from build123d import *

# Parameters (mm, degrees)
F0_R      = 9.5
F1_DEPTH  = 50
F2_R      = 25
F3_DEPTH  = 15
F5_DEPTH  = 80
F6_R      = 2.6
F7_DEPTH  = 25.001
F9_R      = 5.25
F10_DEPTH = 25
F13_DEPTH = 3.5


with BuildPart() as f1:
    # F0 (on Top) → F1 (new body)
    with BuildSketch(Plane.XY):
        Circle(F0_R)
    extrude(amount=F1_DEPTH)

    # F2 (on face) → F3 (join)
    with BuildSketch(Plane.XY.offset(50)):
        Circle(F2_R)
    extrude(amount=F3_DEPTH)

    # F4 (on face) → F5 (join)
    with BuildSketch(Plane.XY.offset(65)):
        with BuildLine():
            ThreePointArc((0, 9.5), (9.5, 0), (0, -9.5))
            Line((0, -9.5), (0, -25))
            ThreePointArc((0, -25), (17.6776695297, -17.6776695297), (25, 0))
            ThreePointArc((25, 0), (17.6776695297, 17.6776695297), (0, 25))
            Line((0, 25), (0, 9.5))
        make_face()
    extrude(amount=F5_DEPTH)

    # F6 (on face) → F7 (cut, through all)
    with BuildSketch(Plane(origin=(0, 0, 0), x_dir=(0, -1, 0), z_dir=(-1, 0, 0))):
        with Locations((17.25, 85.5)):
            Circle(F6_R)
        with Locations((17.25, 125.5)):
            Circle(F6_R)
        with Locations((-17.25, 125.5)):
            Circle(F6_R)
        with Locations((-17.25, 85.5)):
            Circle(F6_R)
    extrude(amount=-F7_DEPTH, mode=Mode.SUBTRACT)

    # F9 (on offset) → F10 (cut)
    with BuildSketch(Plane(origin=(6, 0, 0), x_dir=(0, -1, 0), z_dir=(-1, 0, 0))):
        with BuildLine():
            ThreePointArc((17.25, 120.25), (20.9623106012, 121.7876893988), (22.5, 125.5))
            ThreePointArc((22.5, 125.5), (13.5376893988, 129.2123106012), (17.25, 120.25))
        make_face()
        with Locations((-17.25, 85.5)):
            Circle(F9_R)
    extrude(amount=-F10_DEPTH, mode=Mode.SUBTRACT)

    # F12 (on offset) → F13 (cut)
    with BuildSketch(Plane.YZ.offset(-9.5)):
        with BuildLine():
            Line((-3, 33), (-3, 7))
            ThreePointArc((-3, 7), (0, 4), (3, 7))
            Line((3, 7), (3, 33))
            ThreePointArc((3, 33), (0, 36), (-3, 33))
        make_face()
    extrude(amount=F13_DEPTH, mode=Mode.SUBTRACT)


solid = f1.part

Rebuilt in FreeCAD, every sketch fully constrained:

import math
import FreeCAD as App
import Part
import Sketcher

doc = App.newDocument("Part")
body = doc.addObject("PartDesign::Body", "Body")

sketch1 = body.newObject("Sketcher::SketchObject", "Sketch")
sketch1.AttachmentSupport = (doc.getObject("XY_Plane"), [""])
sketch1.MapMode = "FlatFace"
sketch1.addGeometry(Part.Circle(App.Vector(0, 0, 0), App.Vector(0, 0, 1), 10), False)
sketch1.addConstraint(Sketcher.Constraint("Coincident", 0, 3, -1, 1))
sketch1.addConstraint(Sketcher.Constraint("Diameter", 0, 19.0))
pad1 = body.newObject("PartDesign::Pad", "Pad")
pad1.Profile = sketch1
pad1.Length = 50

sketch2 = body.newObject("Sketcher::SketchObject", "Sketch001")
sketch2.AttachmentSupport = (doc.getObject("XY_Plane"), [""])
sketch2.MapMode = "FlatFace"
sketch2.AttachmentOffset = App.Placement(App.Vector(0, 0, 50), App.Rotation())
sketch2.addGeometry(Part.Circle(App.Vector(0, 0, 0), App.Vector(0, 0, 1), 25), False)
sketch2.addConstraint(Sketcher.Constraint("Coincident", 0, 3, -1, 1))
sketch2.addConstraint(Sketcher.Constraint("Diameter", 0, 50.0))
pad2 = body.newObject("PartDesign::Pad", "Pad001")
pad2.Profile = sketch2
pad2.Length = 15

sketch3 = body.newObject("Sketcher::SketchObject", "Sketch002")
sketch3.AttachmentSupport = (doc.getObject("XY_Plane"), [""])
sketch3.MapMode = "FlatFace"
sketch3.AttachmentOffset = App.Placement(App.Vector(0, 0, 65), App.Rotation())
sketch3.addGeometry(Part.ArcOfCircle(Part.Circle(App.Vector(0, 0, 0), App.Vector(0, 0, 1), 10), math.radians(-90), math.radians(90)), False)
sketch3.addGeometry(Part.LineSegment(App.Vector(0, -10, 0), App.Vector(0, -25, 0)), False)
sketch3.addGeometry(Part.ArcOfCircle(Part.Circle(App.Vector(0, 0, 0), App.Vector(0, 0, 1), 25), math.radians(-90), math.radians(0)), False)
sketch3.addGeometry(Part.ArcOfCircle(Part.Circle(App.Vector(0, 0, 0), App.Vector(0, 0, 1), 25), math.radians(0), math.radians(90)), False)
sketch3.addGeometry(Part.LineSegment(App.Vector(0, 25, 0), App.Vector(0, 10, 0)), False)
sketch3.addConstraint(Sketcher.Constraint("Coincident", 0, 1, 1, 1))
sketch3.addConstraint(Sketcher.Constraint("Coincident", 1, 2, 2, 1))
sketch3.addConstraint(Sketcher.Constraint("Tangent", 2, 2, 3, 1))
sketch3.addConstraint(Sketcher.Constraint("Coincident", 3, 2, 4, 1))
sketch3.addConstraint(Sketcher.Constraint("Coincident", 4, 2, 0, 2))
sketch3.addConstraint(Sketcher.Constraint("Vertical", 1))
sketch3.addConstraint(Sketcher.Constraint("Vertical", 4))
sketch3.addConstraint(Sketcher.Constraint("Coincident", 0, 3, -1, 1))
sketch3.addConstraint(Sketcher.Constraint("Coincident", 2, 3, -1, 1))
sketch3.addConstraint(Sketcher.Constraint("Equal", 2, 3))
sketch3.addConstraint(Sketcher.Constraint("PointOnObject", 0, 1, -2))
sketch3.addConstraint(Sketcher.Constraint("PointOnObject", 2, 2, -1))
sketch3.addConstraint(Sketcher.Constraint("PointOnObject", 3, 2, -2))
sketch3.addConstraint(Sketcher.Constraint("Radius", 2, 25.0))
sketch3.addConstraint(Sketcher.Constraint("Radius", 0, 9.5))
pad3 = body.newObject("PartDesign::Pad", "Pad002")
pad3.Profile = sketch3
pad3.Length = 80

sketch4 = body.newObject("Sketcher::SketchObject", "Sketch003")
sketch4.AttachmentSupport = (doc.getObject("YZ_Plane"), [""])
sketch4.MapMode = "FlatFace"
sketch4.addGeometry(Part.Circle(App.Vector(-17.2, 85.5, 0), App.Vector(0, 0, 1), 2.6), False)
sketch4.addGeometry(Part.Circle(App.Vector(-17.2, 125.5, 0), App.Vector(0, 0, 1), 2.6), False)
sketch4.addGeometry(Part.Circle(App.Vector(17.2, 125.5, 0), App.Vector(0, 0, 1), 2.6), False)
sketch4.addGeometry(Part.Circle(App.Vector(17.2, 85.5, 0), App.Vector(0, 0, 1), 2.6), False)
sketch4.addConstraint(Sketcher.Constraint("Equal", 0, 1))
sketch4.addConstraint(Sketcher.Constraint("Equal", 1, 2))
sketch4.addConstraint(Sketcher.Constraint("Equal", 2, 3))
sketch4.addConstraint(Sketcher.Constraint("Symmetric", 1, 3, 2, 3, -2))
sketch4.addConstraint(Sketcher.Constraint("Symmetric", 0, 3, 3, 3, -2))
sketch4.addConstraint(Sketcher.Constraint("Vertical", 0, 3, 1, 3))
sketch4.addConstraint(Sketcher.Constraint("Diameter", 0, 5.2))
sketch4.addConstraint(Sketcher.Constraint("DistanceY", 0, 3, 1, 3, 40.0))
sketch4.addConstraint(Sketcher.Constraint("DistanceY", -1, 1, 0, 3, 85.5))
sketch4.addConstraint(Sketcher.Constraint("DistanceX", 1, 3, 2, 3, 34.5))
pocket1 = body.newObject("PartDesign::Pocket", "Pocket")
pocket1.Profile = sketch4
pocket1.Type = "ThroughAll"
pocket1.Reversed = True

sketch5 = body.newObject("Sketcher::SketchObject", "Sketch004")
sketch5.AttachmentSupport = (doc.getObject("YZ_Plane"), [""])
sketch5.MapMode = "FlatFace"
sketch5.AttachmentOffset = App.Placement(App.Vector(0, 0, 6), App.Rotation())
sketch5.addGeometry(Part.ArcOfCircle(Part.Circle(App.Vector(-17, 126, 0), App.Vector(0, 0, 1), 5), math.radians(180), math.radians(270)), False)
sketch5.addGeometry(Part.ArcOfCircle(Part.Circle(App.Vector(-17, 126, 0), App.Vector(0, 0, 1), 5), math.radians(-90), math.radians(180)), False)
sketch5.addGeometry(Part.Circle(App.Vector(17, 86, 0), App.Vector(0, 0, 1), 5), False)
sketch5.addConstraint(Sketcher.Constraint("Tangent", 0, 1, 1, 2))
sketch5.addConstraint(Sketcher.Constraint("Coincident", 1, 1, 0, 2))
sketch5.addConstraint(Sketcher.Constraint("Equal", 1, 2))
sketch5.addConstraint(Sketcher.Constraint("Horizontal", 1, 3, 0, 1))
sketch5.addConstraint(Sketcher.Constraint("Vertical", 0, 3, 1, 1))
sketch5.addConstraint(Sketcher.Constraint("Diameter", 2, 10.5))
sketch5.addConstraint(Sketcher.Constraint("DistanceY", 2, 3, 0, 3, 40.0))
sketch5.addConstraint(Sketcher.Constraint("DistanceY", -1, 1, 0, 3, 125.5))
sketch5.addConstraint(Sketcher.Constraint("DistanceX", 0, 1, -1, 1, 22.5))
sketch5.addConstraint(Sketcher.Constraint("DistanceX", 0, 3, 2, 3, 34.5))
pocket2 = body.newObject("PartDesign::Pocket", "Pocket001")
pocket2.Profile = sketch5
pocket2.Length = 25
pocket2.Reversed = True

sketch6 = body.newObject("Sketcher::SketchObject", "Sketch005")
sketch6.AttachmentSupport = (doc.getObject("YZ_Plane"), [""])
sketch6.MapMode = "FlatFace"
sketch6.AttachmentOffset = App.Placement(App.Vector(0, 0, -9.5), App.Rotation())
sketch6.addGeometry(Part.LineSegment(App.Vector(-3, 33, 0), App.Vector(-3, 7, 0)), False)
sketch6.addGeometry(Part.ArcOfCircle(Part.Circle(App.Vector(0, 7, 0), App.Vector(0, 0, 1), 3), math.radians(180), math.radians(360)), False)
sketch6.addGeometry(Part.LineSegment(App.Vector(3, 7, 0), App.Vector(3, 33, 0)), False)
sketch6.addGeometry(Part.ArcOfCircle(Part.Circle(App.Vector(0, 33, 0), App.Vector(0, 0, 1), 3), math.radians(0), math.radians(180)), False)
sketch6.addConstraint(Sketcher.Constraint("Tangent", 0, 2, 1, 1))
sketch6.addConstraint(Sketcher.Constraint("Tangent", 1, 2, 2, 1))
sketch6.addConstraint(Sketcher.Constraint("Tangent", 2, 2, 3, 1))
sketch6.addConstraint(Sketcher.Constraint("Tangent", 3, 2, 0, 1))
sketch6.addConstraint(Sketcher.Constraint("Vertical", 0))
sketch6.addConstraint(Sketcher.Constraint("Vertical", 2))
sketch6.addConstraint(Sketcher.Constraint("PointOnObject", 1, 3, -2))
sketch6.addConstraint(Sketcher.Constraint("Radius", 1, 3.0))
sketch6.addConstraint(Sketcher.Constraint("DistanceY", 0, 2, 0, 1, 26.0))
sketch6.addConstraint(Sketcher.Constraint("DistanceY", -1, 1, 1, 3, 7.0))
pocket3 = body.newObject("PartDesign::Pocket", "Pocket002")
pocket3.Profile = sketch6
pocket3.Length = 3.5
pocket3.Reversed = True

doc.recompute()
